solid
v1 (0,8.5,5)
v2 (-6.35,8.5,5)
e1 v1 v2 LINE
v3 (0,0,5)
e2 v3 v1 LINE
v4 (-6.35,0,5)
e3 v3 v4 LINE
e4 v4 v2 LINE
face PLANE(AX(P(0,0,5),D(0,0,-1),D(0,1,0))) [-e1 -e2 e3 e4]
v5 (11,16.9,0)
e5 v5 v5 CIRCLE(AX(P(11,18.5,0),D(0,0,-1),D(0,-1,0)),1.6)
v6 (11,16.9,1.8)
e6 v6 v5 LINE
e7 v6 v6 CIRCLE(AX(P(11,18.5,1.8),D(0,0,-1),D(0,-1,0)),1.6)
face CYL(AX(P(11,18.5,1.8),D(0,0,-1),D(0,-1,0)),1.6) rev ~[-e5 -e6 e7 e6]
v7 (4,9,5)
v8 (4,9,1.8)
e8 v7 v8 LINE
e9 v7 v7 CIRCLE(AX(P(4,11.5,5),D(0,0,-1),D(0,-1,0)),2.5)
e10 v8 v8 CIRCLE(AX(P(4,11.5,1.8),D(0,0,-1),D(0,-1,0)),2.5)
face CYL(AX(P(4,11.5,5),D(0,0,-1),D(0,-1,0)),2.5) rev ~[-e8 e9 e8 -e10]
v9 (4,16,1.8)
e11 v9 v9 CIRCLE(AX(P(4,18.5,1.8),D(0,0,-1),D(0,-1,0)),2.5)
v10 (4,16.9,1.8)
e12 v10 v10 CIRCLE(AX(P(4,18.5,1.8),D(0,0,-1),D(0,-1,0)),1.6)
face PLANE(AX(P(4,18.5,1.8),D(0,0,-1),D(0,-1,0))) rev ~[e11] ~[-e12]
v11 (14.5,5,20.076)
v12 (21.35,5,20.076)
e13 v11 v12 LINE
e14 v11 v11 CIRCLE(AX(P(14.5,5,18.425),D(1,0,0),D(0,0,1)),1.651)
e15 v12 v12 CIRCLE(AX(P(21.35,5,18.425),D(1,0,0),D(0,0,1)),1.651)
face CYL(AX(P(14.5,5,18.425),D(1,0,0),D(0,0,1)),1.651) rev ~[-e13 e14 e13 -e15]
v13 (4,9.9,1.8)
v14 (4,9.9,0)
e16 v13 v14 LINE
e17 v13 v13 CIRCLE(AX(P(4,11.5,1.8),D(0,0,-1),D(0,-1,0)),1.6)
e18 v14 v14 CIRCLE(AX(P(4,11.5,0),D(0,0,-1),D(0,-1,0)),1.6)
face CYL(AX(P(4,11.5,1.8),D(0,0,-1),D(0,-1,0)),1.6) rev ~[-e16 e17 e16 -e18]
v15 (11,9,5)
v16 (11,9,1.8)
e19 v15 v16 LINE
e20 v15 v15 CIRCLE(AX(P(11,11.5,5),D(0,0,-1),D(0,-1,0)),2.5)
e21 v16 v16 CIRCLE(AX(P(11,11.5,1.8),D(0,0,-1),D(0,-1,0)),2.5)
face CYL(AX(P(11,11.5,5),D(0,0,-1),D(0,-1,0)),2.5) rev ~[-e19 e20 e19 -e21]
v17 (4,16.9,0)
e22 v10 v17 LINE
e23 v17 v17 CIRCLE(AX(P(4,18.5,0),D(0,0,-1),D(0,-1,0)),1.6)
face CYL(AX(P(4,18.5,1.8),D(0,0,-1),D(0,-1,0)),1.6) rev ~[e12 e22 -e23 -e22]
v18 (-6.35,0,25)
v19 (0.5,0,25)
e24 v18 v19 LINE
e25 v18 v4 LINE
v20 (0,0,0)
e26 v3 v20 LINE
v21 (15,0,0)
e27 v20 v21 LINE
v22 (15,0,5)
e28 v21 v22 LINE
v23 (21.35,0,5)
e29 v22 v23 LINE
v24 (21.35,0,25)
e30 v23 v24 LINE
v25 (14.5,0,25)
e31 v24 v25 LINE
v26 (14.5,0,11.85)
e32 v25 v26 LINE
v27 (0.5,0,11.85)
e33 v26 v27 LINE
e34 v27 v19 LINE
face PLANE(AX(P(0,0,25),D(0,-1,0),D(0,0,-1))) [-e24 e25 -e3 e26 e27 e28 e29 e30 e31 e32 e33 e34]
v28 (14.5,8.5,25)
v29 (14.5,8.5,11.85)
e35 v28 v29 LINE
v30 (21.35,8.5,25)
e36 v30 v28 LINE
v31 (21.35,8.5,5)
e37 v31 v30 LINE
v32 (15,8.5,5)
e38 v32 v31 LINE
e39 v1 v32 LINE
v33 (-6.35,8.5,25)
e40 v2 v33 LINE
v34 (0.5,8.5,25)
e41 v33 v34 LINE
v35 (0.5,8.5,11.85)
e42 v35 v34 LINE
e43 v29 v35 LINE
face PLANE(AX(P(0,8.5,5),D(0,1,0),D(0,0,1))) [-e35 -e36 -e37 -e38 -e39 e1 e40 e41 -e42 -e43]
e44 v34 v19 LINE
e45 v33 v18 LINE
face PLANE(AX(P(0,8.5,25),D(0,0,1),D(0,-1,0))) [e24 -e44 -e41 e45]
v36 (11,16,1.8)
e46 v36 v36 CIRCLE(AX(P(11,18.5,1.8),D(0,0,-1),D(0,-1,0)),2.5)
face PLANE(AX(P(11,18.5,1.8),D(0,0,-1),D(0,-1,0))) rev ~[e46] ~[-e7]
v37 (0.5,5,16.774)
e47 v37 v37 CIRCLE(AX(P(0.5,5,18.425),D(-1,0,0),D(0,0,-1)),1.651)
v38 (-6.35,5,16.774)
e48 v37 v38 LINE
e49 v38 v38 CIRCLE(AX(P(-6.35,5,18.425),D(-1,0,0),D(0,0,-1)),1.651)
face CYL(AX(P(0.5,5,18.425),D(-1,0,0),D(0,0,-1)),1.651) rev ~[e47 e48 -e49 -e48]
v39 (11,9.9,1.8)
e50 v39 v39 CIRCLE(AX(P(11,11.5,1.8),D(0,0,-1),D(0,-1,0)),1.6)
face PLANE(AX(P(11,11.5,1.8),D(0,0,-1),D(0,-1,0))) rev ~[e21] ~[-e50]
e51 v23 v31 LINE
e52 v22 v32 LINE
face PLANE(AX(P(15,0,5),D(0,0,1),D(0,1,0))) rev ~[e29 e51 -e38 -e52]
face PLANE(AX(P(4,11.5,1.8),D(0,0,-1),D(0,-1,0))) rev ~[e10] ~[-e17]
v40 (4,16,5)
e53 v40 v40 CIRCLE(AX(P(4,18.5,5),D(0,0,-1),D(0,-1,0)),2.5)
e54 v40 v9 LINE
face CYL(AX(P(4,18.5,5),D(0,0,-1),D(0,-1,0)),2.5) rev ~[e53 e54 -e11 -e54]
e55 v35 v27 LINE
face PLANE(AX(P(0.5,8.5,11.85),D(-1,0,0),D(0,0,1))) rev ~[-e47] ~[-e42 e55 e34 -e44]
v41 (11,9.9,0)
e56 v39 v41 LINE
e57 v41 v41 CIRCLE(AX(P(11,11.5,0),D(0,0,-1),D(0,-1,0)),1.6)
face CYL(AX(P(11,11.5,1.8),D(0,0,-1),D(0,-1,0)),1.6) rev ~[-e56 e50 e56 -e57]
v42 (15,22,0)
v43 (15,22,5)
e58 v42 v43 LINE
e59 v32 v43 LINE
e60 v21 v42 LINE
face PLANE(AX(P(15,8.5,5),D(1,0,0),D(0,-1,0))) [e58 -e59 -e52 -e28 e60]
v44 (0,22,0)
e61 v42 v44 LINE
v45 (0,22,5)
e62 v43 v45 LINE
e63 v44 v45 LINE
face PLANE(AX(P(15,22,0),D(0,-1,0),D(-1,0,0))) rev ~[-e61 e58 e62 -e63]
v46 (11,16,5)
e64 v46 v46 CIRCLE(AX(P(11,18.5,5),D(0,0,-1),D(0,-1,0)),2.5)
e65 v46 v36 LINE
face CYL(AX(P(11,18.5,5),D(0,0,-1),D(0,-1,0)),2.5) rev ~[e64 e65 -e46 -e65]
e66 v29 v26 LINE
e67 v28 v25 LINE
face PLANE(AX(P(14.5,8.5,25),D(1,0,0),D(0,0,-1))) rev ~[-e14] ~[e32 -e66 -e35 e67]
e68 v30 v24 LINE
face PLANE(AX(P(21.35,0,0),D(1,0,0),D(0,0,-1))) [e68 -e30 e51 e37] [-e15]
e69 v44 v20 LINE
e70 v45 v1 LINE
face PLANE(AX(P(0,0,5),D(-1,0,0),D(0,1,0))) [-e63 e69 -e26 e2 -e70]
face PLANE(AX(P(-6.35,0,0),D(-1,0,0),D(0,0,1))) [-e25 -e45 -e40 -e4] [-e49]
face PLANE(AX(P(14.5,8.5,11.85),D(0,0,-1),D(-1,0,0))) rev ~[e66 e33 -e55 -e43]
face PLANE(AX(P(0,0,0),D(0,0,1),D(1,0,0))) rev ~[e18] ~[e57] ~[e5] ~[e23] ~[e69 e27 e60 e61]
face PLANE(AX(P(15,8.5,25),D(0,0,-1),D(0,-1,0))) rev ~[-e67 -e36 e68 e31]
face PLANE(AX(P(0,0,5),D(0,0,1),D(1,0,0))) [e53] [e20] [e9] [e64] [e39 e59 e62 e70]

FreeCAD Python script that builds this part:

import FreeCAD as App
import Part
import Sketcher

V = App.Vector

doc = App.newDocument("Part")
body = doc.addObject("PartDesign::Body", "Body")

sketch1 = doc.addObject("Sketcher::SketchObject", "Sketch")
body.addObject(sketch1)
sketch1.AttachmentSupport = (doc.XY_Plane, [""])
sketch1.MapMode = "FlatFace"
sketch1.addGeometry([
    Part.LineSegment(V(0, 22, 0), V(0, 0, 0)),
    Part.LineSegment(V(0, 0, 0), V(15, 0, 0)),
    Part.LineSegment(V(15, 0, 0), V(15, 22, 0)),
    Part.LineSegment(V(15, 22, 0), V(0, 22, 0)),
], False)
sketch1.addConstraint([
    Sketcher.Constraint("Coincident", 0, 2, 1, 1),
    Sketcher.Constraint("Coincident", 1, 2, 2, 1),
    Sketcher.Constraint("Coincident", 2, 2, 3, 1),
    Sketcher.Constraint("Coincident", 3, 2, 0, 1),
    Sketcher.Constraint("Vertical", 0),
    Sketcher.Constraint("Horizontal", 1),
    Sketcher.Constraint("Vertical", 2),
    Sketcher.Constraint("Horizontal", 3),
    Sketcher.Constraint("Coincident", 0, 2, -1, 1),
    Sketcher.Constraint("DistanceX", 1, 1, 1, 2, 15.0),
    Sketcher.Constraint("DistanceY", 0, 2, 0, 1, 22.0),
])
pad1 = doc.addObject("PartDesign::Pad", "Pad")
body.addObject(pad1)
pad1.Profile = sketch1
pad1.Length = 5

sketch2 = doc.addObject("Sketcher::SketchObject", "Sketch001")
body.addObject(sketch2)
sketch2.AttachmentSupport = (doc.XY_Plane, [""])
sketch2.MapMode = "FlatFace"
sketch2.AttachmentOffset = App.Placement(V(0, 0, 5), App.Rotation())
sketch2.addGeometry([
    Part.Circle(V(4, 18.5, 0), V(0, 0, 1), 1.6),
    Part.Circle(V(4, 11.5, 0), V(0, 0, 1), 1.6),
    Part.Circle(V(11, 18.5, 0), V(0, 0, 1), 1.6),
    Part.Circle(V(11, 11.5, 0), V(0, 0, 1), 1.6),
], False)
sketch2.addConstraint([
    Sketcher.Constraint("Equal", 0, 1),
    Sketcher.Constraint("Equal", 1, 2),
    Sketcher.Constraint("Equal", 2, 3),
    Sketcher.Constraint("Horizontal", 0, 3, 2, 3),
    Sketcher.Constraint("Horizontal", 1, 3, 3, 3),
    Sketcher.Constraint("Vertical", 0, 3, 1, 3),
    Sketcher.Constraint("Vertical", 2, 3, 3, 3),
    Sketcher.Constraint("Diameter", 0, 3.2),
    Sketcher.Constraint("DistanceX", -1, 1, 0, 3, 4.0),
    Sketcher.Constraint("DistanceX", -1, 1, 2, 3, 11.0),
    Sketcher.Constraint("DistanceY", 1, 3, 0, 3, 7.0),
    Sketcher.Constraint("DistanceY", -1, 1, 0, 3, 18.5),
])
doc.recompute()
hole = doc.addObject("PartDesign::Hole", "Hole")
body.addObject(hole)
hole.Profile = sketch2
hole.ThreadType = "None"
hole.Diameter = 3.2
hole.DepthType = "ThroughAll"
hole.HoleCutType = "Counterbore"
hole.HoleCutDiameter = 5
hole.HoleCutDepth = 3.2

sketch3 = doc.addObject("Sketcher::SketchObject", "Sketch002")
body.addObject(sketch3)
sketch3.AttachmentSupport = (doc.XY_Plane, [""])
sketch3.MapMode = "FlatFace"
sketch3.AttachmentOffset = App.Placement(V(0, 0, 5), App.Rotation())
sketch3.addGeometry([
    Part.LineSegment(V(0, 0, 0), V(15, 0, 0)),
    Part.LineSegment(V(15, 0, 0), V(15, 8, 0)),
    Part.LineSegment(V(15, 8, 0), V(0, 8, 0)),
    Part.LineSegment(V(0, 8, 0), V(0, 0, 0)),
], False)
sketch3.addConstraint([
    Sketcher.Constraint("Coincident", 0, 2, 1, 1),
    Sketcher.Constraint("Coincident", 1, 2, 2, 1),
    Sketcher.Constraint("Coincident", 2, 2, 3, 1),
    Sketcher.Constraint("Coincident", 3, 2, 0, 1),
    Sketcher.Constraint("Horizontal", 0),
    Sketcher.Constraint("Vertical", 1),
    Sketcher.Constraint("Horizontal", 2),
    Sketcher.Constraint("Vertical", 3),
    Sketcher.Constraint("Coincident", 3, 2, -1, 1),
    Sketcher.Constraint("DistanceY", 1, 1, 1, 2, 8.5),
    Sketcher.Constraint("DistanceX", 0, 1, 0, 2, 15.0),
])
pad2 = doc.addObject("PartDesign::Pad", "Pad001")
body.addObject(pad2)
pad2.Profile = sketch3
pad2.Length = 20

sketch4 = doc.addObject("Sketcher::SketchObject", "Sketch003")
body.addObject(sketch4)
sketch4.AttachmentSupport = (doc.XZ_Plane, [""])
sketch4.MapMode = "FlatFace"
sketch4.AttachmentOffset = App.Placement(V(0, 0, -8.5), App.Rotation())
sketch4.addGeometry([
    Part.LineSegment(V(0, 12, 0), V(0, 25, 0)),
    Part.LineSegment(V(0, 25, 0), V(14, 25, 0)),
    Part.LineSegment(V(14, 25, 0), V(14, 12, 0)),
    Part.LineSegment(V(14, 12, 0), V(0, 12, 0)),
], False)
sketch4.addConstraint([
    Sketcher.Constraint("Coincident", 0, 2, 1, 1),
    Sketcher.Constraint("Coincident", 1, 2, 2, 1),
    Sketcher.Constraint("Coincident", 2, 2, 3, 1),
    Sketcher.Constraint("Coincident", 3, 2, 0, 1),
    Sketcher.Constraint("Vertical", 0),
    Sketcher.Constraint("Horizontal", 1),
    Sketcher.Constraint("Vertical", 2),
    Sketcher.Constraint("Horizontal", 3),
    Sketcher.Constraint("DistanceX", 1, 1, 1, 2, 14.0),
    Sketcher.Constraint("DistanceY", 0, 1, 0, 2, 13.15),
    Sketcher.Constraint("DistanceX", -1, 1, 0, 2, 0.5),
    Sketcher.Constraint("DistanceY", -1, 1, 0, 2, 25.0),
])
pocket1 = doc.addObject("PartDesign::Pocket", "Pocket")
body.addObject(pocket1)
pocket1.Profile = sketch4
pocket1.Length = 8.5
pocket1.Reversed = True

sketch5 = doc.addObject("Sketcher::SketchObject", "Sketch004")
body.addObject(sketch5)
sketch5.AttachmentSupport = (doc.YZ_Plane, [""])
sketch5.MapMode = "FlatFace"
sketch5.AttachmentOffset = App.Placement(V(0, 0, 15), App.Rotation())
sketch5.addGeometry([
    Part.LineSegment(V(0, 25, 0), V(0, 5, 0)),
    Part.LineSegment(V(0, 5, 0), V(8, 5, 0)),
    Part.LineSegment(V(8, 5, 0), V(8, 25, 0)),
    Part.LineSegment(V(8, 25, 0), V(0, 25, 0)),
], False)
sketch5.addConstraint([
    Sketcher.Constraint("Coincident", 0, 2, 1, 1),
    Sketcher.Constraint("Coincident", 1, 2, 2, 1),
    Sketcher.Constraint("Coincident", 2, 2, 3, 1),
    Sketcher.Constraint("Coincident", 3, 2, 0, 1),
    Sketcher.Constraint("Vertical", 0),
    Sketcher.Constraint("Horizontal", 1),
    Sketcher.Constraint("Vertical", 2),
    Sketcher.Constraint("Horizontal", 3),
    Sketcher.Constraint("PointOnObject", 0, 2, -2),
    Sketcher.Constraint("DistanceY", 0, 2, 0, 1, 20.0),
    Sketcher.Constraint("DistanceX", 1, 1, 1, 2, 8.5),
    Sketcher.Constraint("DistanceY", -1, 1, 0, 2, 5.0),
])
pad3 = doc.addObject("PartDesign::Pad", "Pad002")
body.addObject(pad3)
pad3.Profile = sketch5
pad3.Length = 6.35

sketch6 = doc.addObject("Sketcher::SketchObject", "Sketch005")
body.addObject(sketch6)
sketch6.AttachmentSupport = (doc.YZ_Plane, [""])
sketch6.MapMode = "FlatFace"
sketch6.AttachmentOffset = App.Placement(V(0, 0, 14.5), App.Rotation())
sketch6.addGeometry(Part.Circle(V(5, 18.4, 0), V(0, 0, 1), 1.7), False)
sketch6.addConstraint([
    Sketcher.Constraint("Diameter", 0, 3.302),
    Sketcher.Constraint("DistanceX", -1, 1, 0, 3, 5.0),
    Sketcher.Constraint("DistanceY", -1, 1, 0, 3, 18.425),
])
doc.recompute()
hole2 = doc.addObject("PartDesign::Hole", "Hole001")
body.addObject(hole2)
hole2.Profile = sketch6
hole2.ThreadType = "None"
hole2.Diameter = 3.302
hole2.DepthType = "ThroughAll"
hole2.Reversed = True

sketch7 = doc.addObject("Sketcher::SketchObject", "Sketch006")
body.addObject(sketch7)
sketch7.AttachmentSupport = (doc.YZ_Plane, [""])
sketch7.MapMode = "FlatFace"
sketch7.addGeometry([
    Part.LineSegment(V(8, 25, 0), V(8, 5, 0)),
    Part.LineSegment(V(8, 5, 0), V(0, 5, 0)),
    Part.LineSegment(V(0, 5, 0), V(0, 25, 0)),
    Part.LineSegment(V(0, 25, 0), V(8, 25, 0)),
], False)
sketch7.addConstraint([
    Sketcher.Constraint("Coincident", 0, 2, 1, 1),
    Sketcher.Constraint("Coincident", 1, 2, 2, 1),
    Sketcher.Constraint("Coincident", 2, 2, 3, 1),
    Sketcher.Constraint("Coincident", 3, 2, 0, 1),
    Sketcher.Constraint("Vertical", 0),
    Sketcher.Constraint("Horizontal", 1),
    Sketcher.Constraint("Vertical", 2),
    Sketcher.Constraint("Horizontal", 3),
    Sketcher.Constraint("PointOnObject", 1, 2, -2),
    Sketcher.Constraint("DistanceY", 0, 2, 0, 1, 20.0),
    Sketcher.Constraint("DistanceX", 1, 2, 1, 1, 8.5),
    Sketcher.Constraint("DistanceY", -1, 1, 0, 2, 5.0),
])
pad4 = doc.addObject("PartDesign::Pad", "Pad003")
body.addObject(pad4)
pad4.Profile = sketch7
pad4.Length = 6.35
pad4.Reversed = True

sketch8 = doc.addObject("Sketcher::SketchObject", "Sketch007")
body.addObject(sketch8)
sketch8.AttachmentSupport = (doc.YZ_Plane, [""])
sketch8.MapMode = "FlatFace"
sketch8.AttachmentOffset = App.Placement(V(0, 0, 0.5), App.Rotation())
sketch8.addGeometry(Part.Circle(V(5, 18.4, 0), V(0, 0, 1), 1.7), False)
sketch8.addConstraint([
    Sketcher.Constraint("Diameter", 0, 3.302),
    Sketcher.Constraint("DistanceX", -1, 1, 0, 3, 5.0),
    Sketcher.Constraint("DistanceY", -1, 1, 0, 3, 18.425),
])
doc.recompute()
hole3 = doc.addObject("PartDesign::Hole", "Hole002")
body.addObject(hole3)
hole3.Profile = sketch8
hole3.ThreadType = "None"
hole3.Diameter = 3.302
hole3.DepthType = "ThroughAll"

doc.recompute()
